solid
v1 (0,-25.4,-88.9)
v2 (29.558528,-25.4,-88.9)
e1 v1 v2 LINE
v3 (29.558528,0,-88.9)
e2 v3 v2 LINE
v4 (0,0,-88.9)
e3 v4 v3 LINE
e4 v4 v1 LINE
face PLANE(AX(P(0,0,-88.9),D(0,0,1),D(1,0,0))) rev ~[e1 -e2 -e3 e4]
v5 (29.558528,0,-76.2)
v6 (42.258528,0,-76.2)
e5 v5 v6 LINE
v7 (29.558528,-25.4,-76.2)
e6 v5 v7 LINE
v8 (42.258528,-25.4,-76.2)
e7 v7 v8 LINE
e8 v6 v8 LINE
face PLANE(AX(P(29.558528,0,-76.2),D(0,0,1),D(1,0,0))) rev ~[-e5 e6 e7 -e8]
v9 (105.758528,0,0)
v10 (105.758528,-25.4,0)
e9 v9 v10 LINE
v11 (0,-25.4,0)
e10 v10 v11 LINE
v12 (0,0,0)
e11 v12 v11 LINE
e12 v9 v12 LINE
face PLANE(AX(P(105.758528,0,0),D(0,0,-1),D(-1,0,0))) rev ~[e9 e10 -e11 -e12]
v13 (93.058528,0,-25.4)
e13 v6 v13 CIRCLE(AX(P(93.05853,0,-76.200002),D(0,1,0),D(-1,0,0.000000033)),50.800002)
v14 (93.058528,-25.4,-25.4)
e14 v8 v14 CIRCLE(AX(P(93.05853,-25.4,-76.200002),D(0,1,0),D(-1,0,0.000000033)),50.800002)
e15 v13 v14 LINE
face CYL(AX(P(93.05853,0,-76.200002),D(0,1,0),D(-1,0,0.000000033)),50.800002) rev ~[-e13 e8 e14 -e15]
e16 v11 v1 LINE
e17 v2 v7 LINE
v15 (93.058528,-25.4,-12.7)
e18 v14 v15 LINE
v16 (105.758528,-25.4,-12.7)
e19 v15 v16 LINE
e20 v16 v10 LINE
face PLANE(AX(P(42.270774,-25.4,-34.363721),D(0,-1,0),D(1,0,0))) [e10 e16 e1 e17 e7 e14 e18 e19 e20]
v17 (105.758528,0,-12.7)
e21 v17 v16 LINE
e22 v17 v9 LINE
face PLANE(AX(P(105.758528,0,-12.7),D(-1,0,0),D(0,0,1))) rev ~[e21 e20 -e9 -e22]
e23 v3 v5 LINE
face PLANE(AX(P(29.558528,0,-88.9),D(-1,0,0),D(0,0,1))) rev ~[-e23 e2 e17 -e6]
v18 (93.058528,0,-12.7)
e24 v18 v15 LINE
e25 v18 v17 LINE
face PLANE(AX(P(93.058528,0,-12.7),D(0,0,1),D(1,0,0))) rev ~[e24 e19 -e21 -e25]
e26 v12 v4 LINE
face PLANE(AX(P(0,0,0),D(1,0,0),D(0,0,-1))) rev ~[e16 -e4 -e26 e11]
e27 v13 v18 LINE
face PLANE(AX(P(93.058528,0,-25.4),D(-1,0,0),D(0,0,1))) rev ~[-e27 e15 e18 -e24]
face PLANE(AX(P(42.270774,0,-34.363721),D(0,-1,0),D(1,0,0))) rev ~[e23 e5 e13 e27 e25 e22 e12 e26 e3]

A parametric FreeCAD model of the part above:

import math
import FreeCAD as App
import Part
import Sketcher
from FreeCAD import Vector
Q = App.Units.Quantity

doc = App.newDocument("Part")
body = doc.addObject("PartDesign::Body", "Body")

sketch1 = body.newObject("Sketcher::SketchObject", "Sketch")
sketch1.AttachmentSupport = (doc.getObject("XZ_Plane"), [""])
sketch1.MapMode = "FlatFace"
sketch1.addGeometry([
    Part.LineSegment(Vector(105.758528, 0, 0), Vector(0, 0, 0)),
    Part.LineSegment(Vector(0, 0, 0), Vector(0, -88.9, 0)),
    Part.LineSegment(Vector(0, -88.9, 0), Vector(29.558528, -88.9, 0)),
    Part.LineSegment(Vector(29.558528, -88.9, 0), Vector(29.558528, -76.2, 0)),
    Part.LineSegment(Vector(29.558528, -76.2, 0), Vector(42.258528, -76.2, 0)),
    Part.ArcOfCircle(Part.Circle(Vector(93.05853, -76.200002, 0), Vector(0, 0, 1), 50.800002), math.radians(90.000002), math.radians(179.999998)),
    Part.LineSegment(Vector(93.058528, -25.4, 0), Vector(93.058528, -12.7, 0)),
    Part.LineSegment(Vector(93.058528, -12.7, 0), Vector(105.758528, -12.7, 0)),
    Part.LineSegment(Vector(105.758528, -12.7, 0), Vector(105.758528, 0, 0)),
], False)
sketch1.addConstraint([
    Sketcher.Constraint("Coincident", 0, 2, 1, 1),
    Sketcher.Constraint("Coincident", 1, 2, 2, 1),
    Sketcher.Constraint("Coincident", 2, 2, 3, 1),
    Sketcher.Constraint("Coincident", 3, 2, 4, 1),
    Sketcher.Constraint("Coincident", 4, 2, 5, 2),
    Sketcher.Constraint("Coincident", 5, 1, 6, 1),
    Sketcher.Constraint("Coincident", 6, 2, 7, 1),
    Sketcher.Constraint("Coincident", 7, 2, 8, 1),
    Sketcher.Constraint("Coincident", 8, 2, 0, 1),
    Sketcher.Constraint("Horizontal", 0),
    Sketcher.Constraint("Vertical", 1),
    Sketcher.Constraint("Horizontal", 2),
    Sketcher.Constraint("Vertical", 3),
    Sketcher.Constraint("Horizontal", 4),
    Sketcher.Constraint("Vertical", 6),
    Sketcher.Constraint("Horizontal", 7),
    Sketcher.Constraint("Vertical", 8),
    Sketcher.Constraint("Coincident", 0, 2, -1, 1),
    Sketcher.Constraint("Horizontal", 5, 3, 3, 2),
    Sketcher.Constraint("Equal", 4, 7),
    Sketcher.Constraint("Equal", 7, 3),
    Sketcher.Constraint("Equal", 3, 6),
    Sketcher.Constraint("Equal", 6, 8),
    Sketcher.Constraint("Radius", 5, Q("2.0000001 in")),
    Sketcher.Constraint("DistanceX", 4, 1, 4, 2, Q("0.5 in")),
    Sketcher.Constraint("DistanceX", 4, 2, 5, 1, Q("2 in")),
    Sketcher.Constraint("DistanceX", 0, 2, 0, 1, Q("105.758528 mm")),
])
pad1 = body.newObject("PartDesign::Pad", "Pad")
pad1.Profile = sketch1
pad1.Length = Q("1 in")

doc.recompute()
